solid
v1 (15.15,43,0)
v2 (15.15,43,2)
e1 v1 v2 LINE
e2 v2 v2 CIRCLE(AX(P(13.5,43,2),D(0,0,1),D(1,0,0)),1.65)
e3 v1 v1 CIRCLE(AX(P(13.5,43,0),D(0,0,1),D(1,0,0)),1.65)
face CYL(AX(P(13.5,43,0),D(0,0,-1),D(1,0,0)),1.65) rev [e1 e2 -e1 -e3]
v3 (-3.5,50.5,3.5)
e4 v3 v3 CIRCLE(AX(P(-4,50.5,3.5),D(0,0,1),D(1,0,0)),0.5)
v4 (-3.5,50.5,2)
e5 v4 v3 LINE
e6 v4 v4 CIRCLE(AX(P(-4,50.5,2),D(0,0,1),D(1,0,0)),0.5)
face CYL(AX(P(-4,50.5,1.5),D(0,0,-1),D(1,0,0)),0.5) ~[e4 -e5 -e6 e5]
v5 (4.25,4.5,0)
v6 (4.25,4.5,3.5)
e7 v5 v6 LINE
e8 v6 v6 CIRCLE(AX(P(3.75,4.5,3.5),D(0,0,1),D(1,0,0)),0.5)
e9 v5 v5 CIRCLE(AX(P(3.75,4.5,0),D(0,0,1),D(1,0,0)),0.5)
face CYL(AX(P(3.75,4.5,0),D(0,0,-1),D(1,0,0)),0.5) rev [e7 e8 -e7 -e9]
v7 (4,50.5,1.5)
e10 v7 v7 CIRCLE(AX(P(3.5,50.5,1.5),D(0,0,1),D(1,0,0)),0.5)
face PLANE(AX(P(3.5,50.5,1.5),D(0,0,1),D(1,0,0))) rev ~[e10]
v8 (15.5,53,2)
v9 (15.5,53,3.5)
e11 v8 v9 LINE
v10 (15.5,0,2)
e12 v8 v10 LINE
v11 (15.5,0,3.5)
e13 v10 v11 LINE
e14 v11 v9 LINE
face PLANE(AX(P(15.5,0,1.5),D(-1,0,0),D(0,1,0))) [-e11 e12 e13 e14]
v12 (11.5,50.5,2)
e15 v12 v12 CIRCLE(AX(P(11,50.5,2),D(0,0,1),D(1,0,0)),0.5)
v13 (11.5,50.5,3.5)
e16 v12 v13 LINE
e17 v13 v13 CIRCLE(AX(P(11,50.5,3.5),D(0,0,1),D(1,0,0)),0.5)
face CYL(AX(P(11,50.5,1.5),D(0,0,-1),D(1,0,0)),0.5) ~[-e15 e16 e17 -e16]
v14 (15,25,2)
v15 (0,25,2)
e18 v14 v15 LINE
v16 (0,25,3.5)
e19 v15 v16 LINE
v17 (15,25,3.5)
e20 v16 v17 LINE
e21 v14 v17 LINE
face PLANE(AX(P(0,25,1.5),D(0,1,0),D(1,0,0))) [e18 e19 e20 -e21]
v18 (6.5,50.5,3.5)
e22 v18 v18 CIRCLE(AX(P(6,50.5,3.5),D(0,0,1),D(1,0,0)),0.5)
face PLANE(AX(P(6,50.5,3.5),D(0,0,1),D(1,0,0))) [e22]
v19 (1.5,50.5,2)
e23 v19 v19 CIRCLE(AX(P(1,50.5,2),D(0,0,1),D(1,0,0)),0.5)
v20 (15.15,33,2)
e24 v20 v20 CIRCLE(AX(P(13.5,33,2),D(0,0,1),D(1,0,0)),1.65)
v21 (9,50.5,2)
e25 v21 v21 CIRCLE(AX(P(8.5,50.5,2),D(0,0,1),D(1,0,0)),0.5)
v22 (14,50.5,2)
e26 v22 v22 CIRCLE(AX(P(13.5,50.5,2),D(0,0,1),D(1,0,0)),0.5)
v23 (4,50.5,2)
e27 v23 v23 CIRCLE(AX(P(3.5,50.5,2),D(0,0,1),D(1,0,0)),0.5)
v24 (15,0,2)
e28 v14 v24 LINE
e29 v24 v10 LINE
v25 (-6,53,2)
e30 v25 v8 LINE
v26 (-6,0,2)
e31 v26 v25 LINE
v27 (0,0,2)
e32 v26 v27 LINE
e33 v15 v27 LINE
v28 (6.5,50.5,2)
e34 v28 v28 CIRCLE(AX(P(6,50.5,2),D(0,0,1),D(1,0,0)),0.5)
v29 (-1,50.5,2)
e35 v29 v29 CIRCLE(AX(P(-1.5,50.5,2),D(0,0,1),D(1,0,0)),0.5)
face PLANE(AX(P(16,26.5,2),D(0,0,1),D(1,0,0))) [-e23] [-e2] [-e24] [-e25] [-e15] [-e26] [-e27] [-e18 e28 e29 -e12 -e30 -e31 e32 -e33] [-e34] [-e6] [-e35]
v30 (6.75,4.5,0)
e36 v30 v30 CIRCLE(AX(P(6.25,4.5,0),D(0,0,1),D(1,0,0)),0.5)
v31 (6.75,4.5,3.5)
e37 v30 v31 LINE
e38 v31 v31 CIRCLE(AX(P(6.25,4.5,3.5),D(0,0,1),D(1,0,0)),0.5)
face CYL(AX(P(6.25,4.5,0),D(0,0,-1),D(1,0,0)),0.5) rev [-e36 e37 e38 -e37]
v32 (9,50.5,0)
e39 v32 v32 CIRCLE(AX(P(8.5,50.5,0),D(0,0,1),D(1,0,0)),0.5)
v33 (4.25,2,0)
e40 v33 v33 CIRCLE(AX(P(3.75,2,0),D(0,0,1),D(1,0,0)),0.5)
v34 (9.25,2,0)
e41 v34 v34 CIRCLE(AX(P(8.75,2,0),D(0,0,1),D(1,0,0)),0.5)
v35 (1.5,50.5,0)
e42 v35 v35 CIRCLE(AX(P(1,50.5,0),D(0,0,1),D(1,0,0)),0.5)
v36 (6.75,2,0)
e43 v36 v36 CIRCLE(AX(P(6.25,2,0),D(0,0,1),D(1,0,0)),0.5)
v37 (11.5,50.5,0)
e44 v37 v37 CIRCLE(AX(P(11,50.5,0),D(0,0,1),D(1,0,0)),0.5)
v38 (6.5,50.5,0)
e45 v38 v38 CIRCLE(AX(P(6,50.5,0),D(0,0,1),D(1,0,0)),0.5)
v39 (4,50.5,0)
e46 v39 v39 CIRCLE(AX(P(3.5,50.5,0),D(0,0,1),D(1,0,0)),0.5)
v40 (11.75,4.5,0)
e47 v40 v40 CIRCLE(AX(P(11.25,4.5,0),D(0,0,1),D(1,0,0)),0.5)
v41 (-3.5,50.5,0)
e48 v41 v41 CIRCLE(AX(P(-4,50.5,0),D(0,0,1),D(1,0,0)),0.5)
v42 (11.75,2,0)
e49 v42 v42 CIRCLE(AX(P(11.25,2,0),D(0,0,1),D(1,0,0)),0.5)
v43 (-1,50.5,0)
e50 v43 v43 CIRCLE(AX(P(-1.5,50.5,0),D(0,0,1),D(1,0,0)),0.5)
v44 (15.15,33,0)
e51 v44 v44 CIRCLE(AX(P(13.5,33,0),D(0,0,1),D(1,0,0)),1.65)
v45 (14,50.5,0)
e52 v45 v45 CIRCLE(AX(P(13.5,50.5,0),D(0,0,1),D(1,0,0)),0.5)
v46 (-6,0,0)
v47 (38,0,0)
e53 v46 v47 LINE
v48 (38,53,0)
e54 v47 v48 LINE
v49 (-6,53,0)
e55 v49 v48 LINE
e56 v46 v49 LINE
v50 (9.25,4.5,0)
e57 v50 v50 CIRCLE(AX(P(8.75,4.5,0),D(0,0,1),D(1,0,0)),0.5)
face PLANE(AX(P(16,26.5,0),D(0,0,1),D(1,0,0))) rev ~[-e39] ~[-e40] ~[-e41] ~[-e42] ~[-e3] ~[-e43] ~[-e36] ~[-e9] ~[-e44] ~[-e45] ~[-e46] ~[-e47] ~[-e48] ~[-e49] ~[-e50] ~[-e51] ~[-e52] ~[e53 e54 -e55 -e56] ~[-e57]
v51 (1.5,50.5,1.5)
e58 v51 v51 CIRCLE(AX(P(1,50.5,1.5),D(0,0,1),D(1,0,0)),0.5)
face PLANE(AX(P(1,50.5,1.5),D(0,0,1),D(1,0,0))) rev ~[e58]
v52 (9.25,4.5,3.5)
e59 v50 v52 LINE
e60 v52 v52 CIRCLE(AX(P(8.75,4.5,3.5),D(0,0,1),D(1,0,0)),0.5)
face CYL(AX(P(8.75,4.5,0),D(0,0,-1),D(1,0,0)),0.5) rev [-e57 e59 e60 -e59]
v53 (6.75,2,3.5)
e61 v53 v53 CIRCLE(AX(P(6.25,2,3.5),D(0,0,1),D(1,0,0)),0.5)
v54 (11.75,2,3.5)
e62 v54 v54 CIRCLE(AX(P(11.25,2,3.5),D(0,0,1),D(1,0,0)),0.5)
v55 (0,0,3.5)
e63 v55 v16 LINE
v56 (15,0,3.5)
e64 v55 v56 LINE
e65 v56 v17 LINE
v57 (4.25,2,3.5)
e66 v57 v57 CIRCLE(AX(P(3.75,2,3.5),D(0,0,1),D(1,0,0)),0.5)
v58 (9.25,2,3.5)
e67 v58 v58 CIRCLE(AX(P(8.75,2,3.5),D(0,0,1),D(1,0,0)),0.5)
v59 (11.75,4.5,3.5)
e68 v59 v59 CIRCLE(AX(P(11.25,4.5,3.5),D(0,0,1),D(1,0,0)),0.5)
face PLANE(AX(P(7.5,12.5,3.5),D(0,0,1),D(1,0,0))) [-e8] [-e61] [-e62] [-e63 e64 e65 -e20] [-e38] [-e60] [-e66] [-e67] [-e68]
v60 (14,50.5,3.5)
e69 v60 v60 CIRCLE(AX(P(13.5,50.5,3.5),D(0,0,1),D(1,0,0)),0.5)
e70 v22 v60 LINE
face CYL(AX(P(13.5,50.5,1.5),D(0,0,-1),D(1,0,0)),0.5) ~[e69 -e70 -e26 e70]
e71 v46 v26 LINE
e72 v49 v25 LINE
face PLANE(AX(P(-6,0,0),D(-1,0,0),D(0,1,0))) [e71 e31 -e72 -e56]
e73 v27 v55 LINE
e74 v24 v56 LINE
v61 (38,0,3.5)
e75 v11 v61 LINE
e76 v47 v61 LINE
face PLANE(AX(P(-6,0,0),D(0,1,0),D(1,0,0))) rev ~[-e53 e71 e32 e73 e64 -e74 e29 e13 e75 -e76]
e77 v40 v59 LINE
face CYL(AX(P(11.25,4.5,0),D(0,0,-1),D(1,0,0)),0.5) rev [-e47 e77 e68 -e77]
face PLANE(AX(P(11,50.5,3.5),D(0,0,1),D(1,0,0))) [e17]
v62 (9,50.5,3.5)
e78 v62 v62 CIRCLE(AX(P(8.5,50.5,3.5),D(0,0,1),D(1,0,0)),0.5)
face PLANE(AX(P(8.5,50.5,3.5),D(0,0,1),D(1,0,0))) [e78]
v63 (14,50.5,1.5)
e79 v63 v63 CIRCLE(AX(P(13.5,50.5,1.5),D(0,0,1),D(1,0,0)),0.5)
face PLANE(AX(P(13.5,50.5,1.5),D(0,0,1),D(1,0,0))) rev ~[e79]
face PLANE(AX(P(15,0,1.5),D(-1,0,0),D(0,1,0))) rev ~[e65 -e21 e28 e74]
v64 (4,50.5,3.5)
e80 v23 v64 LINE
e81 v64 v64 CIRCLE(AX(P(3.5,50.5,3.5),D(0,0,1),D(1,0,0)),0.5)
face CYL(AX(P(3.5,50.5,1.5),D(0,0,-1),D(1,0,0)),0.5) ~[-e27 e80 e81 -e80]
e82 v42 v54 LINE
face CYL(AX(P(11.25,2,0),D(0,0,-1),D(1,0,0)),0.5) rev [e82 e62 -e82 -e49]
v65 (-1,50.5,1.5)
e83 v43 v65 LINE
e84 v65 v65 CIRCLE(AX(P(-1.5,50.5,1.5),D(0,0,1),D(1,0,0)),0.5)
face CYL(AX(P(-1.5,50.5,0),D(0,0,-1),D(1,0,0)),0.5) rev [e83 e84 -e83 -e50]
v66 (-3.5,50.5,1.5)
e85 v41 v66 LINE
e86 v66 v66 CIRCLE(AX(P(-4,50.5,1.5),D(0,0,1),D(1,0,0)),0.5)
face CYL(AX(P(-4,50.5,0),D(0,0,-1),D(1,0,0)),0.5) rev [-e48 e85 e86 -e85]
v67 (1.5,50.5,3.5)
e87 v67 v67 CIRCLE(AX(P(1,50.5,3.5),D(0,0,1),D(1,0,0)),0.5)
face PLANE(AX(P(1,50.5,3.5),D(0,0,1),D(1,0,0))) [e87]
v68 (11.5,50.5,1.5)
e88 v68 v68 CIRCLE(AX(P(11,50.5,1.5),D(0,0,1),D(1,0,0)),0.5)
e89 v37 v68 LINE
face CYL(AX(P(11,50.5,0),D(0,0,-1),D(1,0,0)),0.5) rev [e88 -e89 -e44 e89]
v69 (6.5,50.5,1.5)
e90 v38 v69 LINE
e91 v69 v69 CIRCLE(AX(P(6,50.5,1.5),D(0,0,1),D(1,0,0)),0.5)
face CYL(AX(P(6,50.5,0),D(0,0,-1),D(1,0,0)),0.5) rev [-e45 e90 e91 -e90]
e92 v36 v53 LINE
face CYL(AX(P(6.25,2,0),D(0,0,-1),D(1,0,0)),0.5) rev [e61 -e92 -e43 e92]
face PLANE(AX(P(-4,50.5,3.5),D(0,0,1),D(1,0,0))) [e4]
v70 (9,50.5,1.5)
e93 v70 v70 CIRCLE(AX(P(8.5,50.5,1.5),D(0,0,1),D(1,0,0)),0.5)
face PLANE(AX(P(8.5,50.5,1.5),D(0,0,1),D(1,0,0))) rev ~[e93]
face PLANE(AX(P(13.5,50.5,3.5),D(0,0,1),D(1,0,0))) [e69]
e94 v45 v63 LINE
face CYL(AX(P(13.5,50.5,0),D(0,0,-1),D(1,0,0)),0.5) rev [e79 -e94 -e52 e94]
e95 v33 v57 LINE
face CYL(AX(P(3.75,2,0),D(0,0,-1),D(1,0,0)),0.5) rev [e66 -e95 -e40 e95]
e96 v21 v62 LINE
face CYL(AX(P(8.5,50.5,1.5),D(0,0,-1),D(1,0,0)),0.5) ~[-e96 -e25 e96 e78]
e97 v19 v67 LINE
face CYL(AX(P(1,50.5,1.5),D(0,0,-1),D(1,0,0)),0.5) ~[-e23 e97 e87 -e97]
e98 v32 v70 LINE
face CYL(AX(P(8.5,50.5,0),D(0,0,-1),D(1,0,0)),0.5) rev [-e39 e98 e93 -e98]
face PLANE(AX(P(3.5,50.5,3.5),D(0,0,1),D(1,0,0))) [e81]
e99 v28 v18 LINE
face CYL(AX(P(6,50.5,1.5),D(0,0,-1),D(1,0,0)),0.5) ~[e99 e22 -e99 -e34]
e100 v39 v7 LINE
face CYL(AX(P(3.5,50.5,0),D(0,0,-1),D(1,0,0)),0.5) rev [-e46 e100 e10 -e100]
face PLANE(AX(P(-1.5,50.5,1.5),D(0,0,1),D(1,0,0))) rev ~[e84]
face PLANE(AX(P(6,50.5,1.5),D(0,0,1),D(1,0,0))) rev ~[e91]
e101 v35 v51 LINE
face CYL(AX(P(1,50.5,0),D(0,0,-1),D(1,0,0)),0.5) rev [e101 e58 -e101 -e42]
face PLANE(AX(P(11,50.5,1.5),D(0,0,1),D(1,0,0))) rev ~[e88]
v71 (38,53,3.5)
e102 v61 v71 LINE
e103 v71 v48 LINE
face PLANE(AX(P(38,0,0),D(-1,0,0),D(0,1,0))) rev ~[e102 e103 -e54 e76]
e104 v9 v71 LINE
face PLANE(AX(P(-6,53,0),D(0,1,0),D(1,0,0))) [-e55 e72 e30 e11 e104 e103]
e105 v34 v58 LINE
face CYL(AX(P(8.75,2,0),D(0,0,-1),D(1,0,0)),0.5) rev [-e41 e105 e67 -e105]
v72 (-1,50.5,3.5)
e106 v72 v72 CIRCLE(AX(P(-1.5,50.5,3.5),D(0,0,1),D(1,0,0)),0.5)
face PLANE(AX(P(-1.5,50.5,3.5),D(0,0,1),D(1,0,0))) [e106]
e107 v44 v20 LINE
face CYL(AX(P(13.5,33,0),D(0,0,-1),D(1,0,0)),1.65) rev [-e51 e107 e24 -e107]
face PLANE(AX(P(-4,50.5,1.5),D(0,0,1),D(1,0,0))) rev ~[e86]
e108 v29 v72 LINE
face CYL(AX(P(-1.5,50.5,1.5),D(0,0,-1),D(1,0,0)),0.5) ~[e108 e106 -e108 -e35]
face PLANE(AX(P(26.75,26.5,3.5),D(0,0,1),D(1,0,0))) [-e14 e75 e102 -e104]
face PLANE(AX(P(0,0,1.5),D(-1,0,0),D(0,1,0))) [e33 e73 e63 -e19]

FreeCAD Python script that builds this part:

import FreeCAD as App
import Part
import Sketcher
from FreeCAD import Vector

doc = App.newDocument("Part")
body = doc.addObject("PartDesign::Body", "Body")

# Sketch on XY plane
sketch1 = body.newObject("Sketcher::SketchObject", "Sketch")
sketch1.AttachmentSupport = (doc.getObject("XY_Plane"), [""])
sketch1.MapMode = "FlatFace"
sketch1.addGeometry([
    Part.LineSegment(Vector(-6, 53, 0), Vector(-6, 0, 0)),  # 0
    Part.LineSegment(Vector(-6, 0, 0), Vector(38, 0, 0)),  # 1
    Part.LineSegment(Vector(38, 0, 0), Vector(38, 53, 0)),  # 2
    Part.LineSegment(Vector(38, 53, 0), Vector(-6, 53, 0)),  # 3
    Part.Circle(Vector(3.75, 2, 0), Vector(0, 0, 1), 0.5),  # 4
    Part.Circle(Vector(3.75, 4.5, 0), Vector(0, 0, 1), 0.5),  # 5
    Part.Circle(Vector(6.25, 2, 0), Vector(0, 0, 1), 0.5),  # 6
    Part.Circle(Vector(6.25, 4.5, 0), Vector(0, 0, 1), 0.5),  # 7
    Part.Circle(Vector(8.75, 2, 0), Vector(0, 0, 1), 0.5),  # 8
    Part.Circle(Vector(8.75, 4.5, 0), Vector(0, 0, 1), 0.5),  # 9
    Part.Circle(Vector(11.25, 2, 0), Vector(0, 0, 1), 0.5),  # 10
    Part.Circle(Vector(11.25, 4.5, 0), Vector(0, 0, 1), 0.5),  # 11
    Part.Circle(Vector(-4, 50.5, 0), Vector(0, 0, 1), 0.5),  # 12
    Part.Circle(Vector(-1.5, 50.5, 0), Vector(0, 0, 1), 0.5),  # 13
    Part.Circle(Vector(1, 50.5, 0), Vector(0, 0, 1), 0.5),  # 14
    Part.Circle(Vector(3.5, 50.5, 0), Vector(0, 0, 1), 0.5),  # 15
    Part.Circle(Vector(13.5, 33, 0), Vector(0, 0, 1), 1.65),  # 16
    Part.Circle(Vector(6, 50.5, 0), Vector(0, 0, 1), 0.5),  # 17
    Part.Circle(Vector(8.5, 50.5, 0), Vector(0, 0, 1), 0.5),  # 18
    Part.Circle(Vector(13.5, 43, 0), Vector(0, 0, 1), 1.65),  # 19
    Part.Circle(Vector(11, 50.5, 0), Vector(0, 0, 1), 0.5),  # 20
    Part.Circle(Vector(13.5, 50.5, 0), Vector(0, 0, 1), 0.5),  # 21
], False)
sketch1.addConstraint([
    Sketcher.Constraint("Coincident", 0, 2, 1, 1),
    Sketcher.Constraint("Coincident", 1, 2, 2, 1),
    Sketcher.Constraint("Coincident", 2, 2, 3, 1),
    Sketcher.Constraint("Coincident", 3, 2, 0, 1),
    Sketcher.Constraint("Vertical", 0),
    Sketcher.Constraint("Horizontal", 1),
    Sketcher.Constraint("Vertical", 2),
    Sketcher.Constraint("Horizontal", 3),
    Sketcher.Constraint("Equal", 4, 5),
    Sketcher.Constraint("Equal", 5, 6),
    Sketcher.Constraint("Equal", 6, 7),
    Sketcher.Constraint("Equal", 7, 8),
    Sketcher.Constraint("Equal", 8, 9),
    Sketcher.Constraint("Equal", 9, 10),
    Sketcher.Constraint("Equal", 10, 11),
    Sketcher.Constraint("Equal", 11, 12),
    Sketcher.Constraint("Equal", 12, 13),
    Sketcher.Constraint("Equal", 13, 14),
    Sketcher.Constraint("Equal", 14, 15),
    Sketcher.Constraint("Equal", 15, 17),
    Sketcher.Constraint("Equal", 17, 18),
    Sketcher.Constraint("Equal", 16, 19),
    Sketcher.Constraint("Equal", 18, 20),
    Sketcher.Constraint("Equal", 20, 21),
    Sketcher.Constraint("PointOnObject", 0, 2, -1),
    Sketcher.Constraint("Horizontal", 4, 3, 6, 3),
    Sketcher.Constraint("Horizontal", 5, 3, 7, 3),
    Sketcher.Constraint("Horizontal", 6, 3, 8, 3),
    Sketcher.Constraint("Horizontal", 7, 3, 9, 3),
    Sketcher.Constraint("Horizontal", 8, 3, 10, 3),
    Sketcher.Constraint("Horizontal", 9, 3, 11, 3),
    Sketcher.Constraint("Horizontal", 12, 3, 13, 3),
    Sketcher.Constraint("Horizontal", 13, 3, 14, 3),
    Sketcher.Constraint("Horizontal", 14, 3, 15, 3),
    Sketcher.Constraint("Horizontal", 15, 3, 17, 3),
    Sketcher.Constraint("Horizontal", 17, 3, 18, 3),
    Sketcher.Constraint("Horizontal", 18, 3, 20, 3),
    Sketcher.Constraint("Horizontal", 20, 3, 21, 3),
    Sketcher.Constraint("Vertical", 4, 3, 5, 3),
    Sketcher.Constraint("Vertical", 6, 3, 7, 3),
    Sketcher.Constraint("Vertical", 8, 3, 9, 3),
    Sketcher.Constraint("Vertical", 10, 3, 11, 3),
    Sketcher.Constraint("Vertical", 16, 3, 19, 3),
    Sketcher.Constraint("Vertical", 19, 3, 21, 3),
    Sketcher.Constraint("Diameter", 4, 1.0),
    Sketcher.Constraint("Diameter", 16, 3.3),
    Sketcher.Constraint("DistanceX", 1, 1, 1, 2, 44.0),
    Sketcher.Constraint("DistanceY", 0, 2, 0, 1, 53.0),
    Sketcher.Constraint("DistanceY", -1, 1, 4, 3, 2.0),
    Sketcher.Constraint("DistanceX", 12, 3, -1, 1, 4.0),
    Sketcher.Constraint("DistanceX", -1, 1, 14, 3, 1.0),
    Sketcher.Constraint("DistanceY", -1, 1, 16, 3, 33.0),
    Sketcher.Constraint("DistanceX", -1, 1, 17, 3, 6.0),
    Sketcher.Constraint("DistanceY", -1, 1, 19, 3, 43.0),
    Sketcher.Constraint("DistanceX", -1, 1, 20, 3, 11.0),
    Sketcher.Constraint("DistanceX", 0, 2, -1, 1, 6.0),
    Sketcher.Constraint("DistanceX", 4, 3, 8, 3, 5.0),
    Sketcher.Constraint("DistanceX", 6, 3, 10, 3, 5.0),
    Sketcher.Constraint("DistanceY", 5, 3, 12, 3, 46.0),
    Sketcher.Constraint("DistanceX", 13, 3, 15, 3, 5.0),
    Sketcher.Constraint("DistanceX", 15, 3, 16, 3, 10.0),
    Sketcher.Constraint("DistanceX", 15, 3, 18, 3, 5.0),
    Sketcher.Constraint("DistanceY", -1, 1, 5, 3, 4.5),
    Sketcher.Constraint("DistanceX", 13, 3, -1, 1, 1.5),
    Sketcher.Constraint("DistanceX", 4, 3, 6, 3, 2.5),
    Sketcher.Constraint("DistanceX", -1, 1, 4, 3, 3.75),
])
pad1 = body.newObject("PartDesign::Pad", "Pad")
pad1.Profile = sketch1
pad1.Length = 2

# Sketch on XY plane
sketch2 = body.newObject("Sketcher::SketchObject", "Sketch001")
sketch2.AttachmentSupport = (doc.getObject("XY_Plane"), [""])
sketch2.MapMode = "FlatFace"
sketch2.AttachmentOffset = App.Placement(Vector(0, 0, 1.5), App.Rotation())
sketch2.addGeometry([
    Part.Circle(Vector(1, 50.5, 0), Vector(0, 0, 1), 0.5),  # 0
    Part.Circle(Vector(3.5, 50.5, 0), Vector(0, 0, 1), 0.5),  # 1
    Part.Circle(Vector(6, 50.5, 0), Vector(0, 0, 1), 0.5),  # 2
    Part.Circle(Vector(8.5, 50.5, 0), Vector(0, 0, 1), 0.5),  # 3
    Part.Circle(Vector(11, 50.5, 0), Vector(0, 0, 1), 0.5),  # 4
    Part.Circle(Vector(13.5, 50.5, 0), Vector(0, 0, 1), 0.5),  # 5
    Part.Circle(Vector(-4, 50.5, 0), Vector(0, 0, 1), 0.5),  # 6
    Part.Circle(Vector(-1.5, 50.5, 0), Vector(0, 0, 1), 0.5),  # 7
    Part.LineSegment(Vector(0, 25, 0), Vector(0, 0, 0)),  # 8
    Part.LineSegment(Vector(0, 0, 0), Vector(15, 0, 0)),  # 9
    Part.LineSegment(Vector(15, 0, 0), Vector(15, 25, 0)),  # 10
    Part.LineSegment(Vector(15, 25, 0), Vector(0, 25, 0)),  # 11
    Part.Circle(Vector(3.75, 2, 0), Vector(0, 0, 1), 0.5),  # 12
    Part.Circle(Vector(6.25, 2, 0), Vector(0, 0, 1), 0.5),  # 13
    Part.Circle(Vector(8.75, 2, 0), Vector(0, 0, 1), 0.5),  # 14
    Part.Circle(Vector(11.25, 2, 0), Vector(0, 0, 1), 0.5),  # 15
    Part.Circle(Vector(3.75, 4.5, 0), Vector(0, 0, 1), 0.5),  # 16
    Part.Circle(Vector(6.25, 4.5, 0), Vector(0, 0, 1), 0.5),  # 17
    Part.Circle(Vector(8.75, 4.5, 0), Vector(0, 0, 1), 0.5),  # 18
    Part.Circle(Vector(11.25, 4.5, 0), Vector(0, 0, 1), 0.5),  # 19
    Part.LineSegment(Vector(15.5, 53, 0), Vector(15.5, 0, 0)),  # 20
    Part.LineSegment(Vector(15.5, 0, 0), Vector(38, 0, 0)),  # 21
    Part.LineSegment(Vector(38, 0, 0), Vector(38, 53, 0)),  # 22
    Part.LineSegment(Vector(38, 53, 0), Vector(15.5, 53, 0)),  # 23
], False)
sketch2.addConstraint([
    Sketcher.Constraint("Coincident", 8, 2, 9, 1),
    Sketcher.Constraint("Coincident", 9, 2, 10, 1),
    Sketcher.Constraint("Coincident", 10, 2, 11, 1),
    Sketcher.Constraint("Coincident", 11, 2, 8, 1),
    Sketcher.Constraint("Coincident", 20, 2, 21, 1),
    Sketcher.Constraint("Coincident", 21, 2, 22, 1),
    Sketcher.Constraint("Coincident", 22, 2, 23, 1),
    Sketcher.Constraint("Coincident", 23, 2, 20, 1),
    Sketcher.Constraint("Vertical", 8),
    Sketcher.Constraint("Horizontal", 9),
    Sketcher.Constraint("Vertical", 10),
    Sketcher.Constraint("Horizontal", 11),
    Sketcher.Constraint("Vertical", 20),
    Sketcher.Constraint("Horizontal", 21),
    Sketcher.Constraint("Vertical", 22),
    Sketcher.Constraint("Horizontal", 23),
    Sketcher.Constraint("Coincident", 8, 2, -1, 1),
    Sketcher.Constraint("Equal", 0, 1),
    Sketcher.Constraint("Equal", 1, 2),
    Sketcher.Constraint("Equal", 2, 3),
    Sketcher.Constraint("Equal", 3, 4),
    Sketcher.Constraint("Equal", 4, 5),
    Sketcher.Constraint("Equal", 5, 6),
    Sketcher.Constraint("Equal", 6, 7),
    Sketcher.Constraint("Equal", 7, 12),
    Sketcher.Constraint("Equal", 12, 13),
    Sketcher.Constraint("Equal", 13, 14),
    Sketcher.Constraint("Equal", 14, 15),
    Sketcher.Constraint("Equal", 15, 16),
    Sketcher.Constraint("Equal", 16, 17),
    Sketcher.Constraint("Equal", 17, 18),
    Sketcher.Constraint("Equal", 18, 19),
    Sketcher.Constraint("PointOnObject", 20, 2, -1),
    Sketcher.Constraint("Horizontal", 0, 3, 1, 3),
    Sketcher.Constraint("Horizontal", 1, 3, 2, 3),
    Sketcher.Constraint("Horizontal", 2, 3, 3, 3),
    Sketcher.Constraint("Horizontal", 3, 3, 4, 3),
    Sketcher.Constraint("Horizontal", 4, 3, 5, 3),
    Sketcher.Constraint("Horizontal", 5, 3, 6, 3),
    Sketcher.Constraint("Horizontal", 6, 3, 7, 3),
    Sketcher.Constraint("Horizontal", 12, 3, 13, 3),
    Sketcher.Constraint("Horizontal", 13, 3, 14, 3),
    Sketcher.Constraint("Horizontal", 14, 3, 15, 3),
    Sketcher.Constraint("Horizontal", 16, 3, 17, 3),
    Sketcher.Constraint("Horizontal", 17, 3, 18, 3),
    Sketcher.Constraint("Horizontal", 18, 3, 19, 3),
    Sketcher.Constraint("Vertical", 12, 3, 16, 3),
    Sketcher.Constraint("Vertical", 13, 3, 17, 3),
    Sketcher.Constraint("Vertical", 14, 3, 18, 3),
    Sketcher.Constraint("Vertical", 15, 3, 19, 3),
    Sketcher.Constraint("Diameter", 0, 1.0),
    Sketcher.Constraint("DistanceX", 9, 1, 9, 2, 15.0),
    Sketcher.Constraint("DistanceY", 8, 2, 8, 1, 25.0),
    Sketcher.Constraint("DistanceY", 20, 2, 20, 1, 53.0),
    Sketcher.Constraint("DistanceX", 21, 1, 21, 2, 22.5),
    Sketcher.Constraint("DistanceX", -1, 1, 0, 3, 1.0),
    Sketcher.Constraint("DistanceX", -1, 1, 2, 3, 6.0),
    Sketcher.Constraint("DistanceX", -1, 1, 4, 3, 11.0),
    Sketcher.Constraint("DistanceX", 6, 3, -1, 1, 4.0),
    Sketcher.Constraint("DistanceY", -1, 1, 12, 3, 2.0),
    Sketcher.Constraint("DistanceX", -1, 1, 21, 2, 38.0),
    Sketcher.Constraint("DistanceX", 1, 3, 3, 3, 5.0),
    Sketcher.Constraint("DistanceX", 3, 3, 5, 3, 5.0),
    Sketcher.Constraint("DistanceX", 7, 3, 1, 3, 5.0),
    Sketcher.Constraint("DistanceX", 12, 3, 14, 3, 5.0),
    Sketcher.Constraint("DistanceX", 13, 3, 15, 3, 5.0),
    Sketcher.Constraint("DistanceY", 16, 3, 1, 3, 46.0),
    Sketcher.Constraint("DistanceX", 5, 3, 23, 2, 2.0),
    Sketcher.Constraint("DistanceY", -1, 1, 0, 3, 50.5),
    Sketcher.Constraint("DistanceX", 12, 3, 13, 3, 2.5),
    Sketcher.Constraint("DistanceX", -1, 1, 12, 3, 3.75),
])
pad2 = body.newObject("PartDesign::Pad", "Pad001")
pad2.Profile = sketch2
pad2.Length = 2

doc.recompute()
